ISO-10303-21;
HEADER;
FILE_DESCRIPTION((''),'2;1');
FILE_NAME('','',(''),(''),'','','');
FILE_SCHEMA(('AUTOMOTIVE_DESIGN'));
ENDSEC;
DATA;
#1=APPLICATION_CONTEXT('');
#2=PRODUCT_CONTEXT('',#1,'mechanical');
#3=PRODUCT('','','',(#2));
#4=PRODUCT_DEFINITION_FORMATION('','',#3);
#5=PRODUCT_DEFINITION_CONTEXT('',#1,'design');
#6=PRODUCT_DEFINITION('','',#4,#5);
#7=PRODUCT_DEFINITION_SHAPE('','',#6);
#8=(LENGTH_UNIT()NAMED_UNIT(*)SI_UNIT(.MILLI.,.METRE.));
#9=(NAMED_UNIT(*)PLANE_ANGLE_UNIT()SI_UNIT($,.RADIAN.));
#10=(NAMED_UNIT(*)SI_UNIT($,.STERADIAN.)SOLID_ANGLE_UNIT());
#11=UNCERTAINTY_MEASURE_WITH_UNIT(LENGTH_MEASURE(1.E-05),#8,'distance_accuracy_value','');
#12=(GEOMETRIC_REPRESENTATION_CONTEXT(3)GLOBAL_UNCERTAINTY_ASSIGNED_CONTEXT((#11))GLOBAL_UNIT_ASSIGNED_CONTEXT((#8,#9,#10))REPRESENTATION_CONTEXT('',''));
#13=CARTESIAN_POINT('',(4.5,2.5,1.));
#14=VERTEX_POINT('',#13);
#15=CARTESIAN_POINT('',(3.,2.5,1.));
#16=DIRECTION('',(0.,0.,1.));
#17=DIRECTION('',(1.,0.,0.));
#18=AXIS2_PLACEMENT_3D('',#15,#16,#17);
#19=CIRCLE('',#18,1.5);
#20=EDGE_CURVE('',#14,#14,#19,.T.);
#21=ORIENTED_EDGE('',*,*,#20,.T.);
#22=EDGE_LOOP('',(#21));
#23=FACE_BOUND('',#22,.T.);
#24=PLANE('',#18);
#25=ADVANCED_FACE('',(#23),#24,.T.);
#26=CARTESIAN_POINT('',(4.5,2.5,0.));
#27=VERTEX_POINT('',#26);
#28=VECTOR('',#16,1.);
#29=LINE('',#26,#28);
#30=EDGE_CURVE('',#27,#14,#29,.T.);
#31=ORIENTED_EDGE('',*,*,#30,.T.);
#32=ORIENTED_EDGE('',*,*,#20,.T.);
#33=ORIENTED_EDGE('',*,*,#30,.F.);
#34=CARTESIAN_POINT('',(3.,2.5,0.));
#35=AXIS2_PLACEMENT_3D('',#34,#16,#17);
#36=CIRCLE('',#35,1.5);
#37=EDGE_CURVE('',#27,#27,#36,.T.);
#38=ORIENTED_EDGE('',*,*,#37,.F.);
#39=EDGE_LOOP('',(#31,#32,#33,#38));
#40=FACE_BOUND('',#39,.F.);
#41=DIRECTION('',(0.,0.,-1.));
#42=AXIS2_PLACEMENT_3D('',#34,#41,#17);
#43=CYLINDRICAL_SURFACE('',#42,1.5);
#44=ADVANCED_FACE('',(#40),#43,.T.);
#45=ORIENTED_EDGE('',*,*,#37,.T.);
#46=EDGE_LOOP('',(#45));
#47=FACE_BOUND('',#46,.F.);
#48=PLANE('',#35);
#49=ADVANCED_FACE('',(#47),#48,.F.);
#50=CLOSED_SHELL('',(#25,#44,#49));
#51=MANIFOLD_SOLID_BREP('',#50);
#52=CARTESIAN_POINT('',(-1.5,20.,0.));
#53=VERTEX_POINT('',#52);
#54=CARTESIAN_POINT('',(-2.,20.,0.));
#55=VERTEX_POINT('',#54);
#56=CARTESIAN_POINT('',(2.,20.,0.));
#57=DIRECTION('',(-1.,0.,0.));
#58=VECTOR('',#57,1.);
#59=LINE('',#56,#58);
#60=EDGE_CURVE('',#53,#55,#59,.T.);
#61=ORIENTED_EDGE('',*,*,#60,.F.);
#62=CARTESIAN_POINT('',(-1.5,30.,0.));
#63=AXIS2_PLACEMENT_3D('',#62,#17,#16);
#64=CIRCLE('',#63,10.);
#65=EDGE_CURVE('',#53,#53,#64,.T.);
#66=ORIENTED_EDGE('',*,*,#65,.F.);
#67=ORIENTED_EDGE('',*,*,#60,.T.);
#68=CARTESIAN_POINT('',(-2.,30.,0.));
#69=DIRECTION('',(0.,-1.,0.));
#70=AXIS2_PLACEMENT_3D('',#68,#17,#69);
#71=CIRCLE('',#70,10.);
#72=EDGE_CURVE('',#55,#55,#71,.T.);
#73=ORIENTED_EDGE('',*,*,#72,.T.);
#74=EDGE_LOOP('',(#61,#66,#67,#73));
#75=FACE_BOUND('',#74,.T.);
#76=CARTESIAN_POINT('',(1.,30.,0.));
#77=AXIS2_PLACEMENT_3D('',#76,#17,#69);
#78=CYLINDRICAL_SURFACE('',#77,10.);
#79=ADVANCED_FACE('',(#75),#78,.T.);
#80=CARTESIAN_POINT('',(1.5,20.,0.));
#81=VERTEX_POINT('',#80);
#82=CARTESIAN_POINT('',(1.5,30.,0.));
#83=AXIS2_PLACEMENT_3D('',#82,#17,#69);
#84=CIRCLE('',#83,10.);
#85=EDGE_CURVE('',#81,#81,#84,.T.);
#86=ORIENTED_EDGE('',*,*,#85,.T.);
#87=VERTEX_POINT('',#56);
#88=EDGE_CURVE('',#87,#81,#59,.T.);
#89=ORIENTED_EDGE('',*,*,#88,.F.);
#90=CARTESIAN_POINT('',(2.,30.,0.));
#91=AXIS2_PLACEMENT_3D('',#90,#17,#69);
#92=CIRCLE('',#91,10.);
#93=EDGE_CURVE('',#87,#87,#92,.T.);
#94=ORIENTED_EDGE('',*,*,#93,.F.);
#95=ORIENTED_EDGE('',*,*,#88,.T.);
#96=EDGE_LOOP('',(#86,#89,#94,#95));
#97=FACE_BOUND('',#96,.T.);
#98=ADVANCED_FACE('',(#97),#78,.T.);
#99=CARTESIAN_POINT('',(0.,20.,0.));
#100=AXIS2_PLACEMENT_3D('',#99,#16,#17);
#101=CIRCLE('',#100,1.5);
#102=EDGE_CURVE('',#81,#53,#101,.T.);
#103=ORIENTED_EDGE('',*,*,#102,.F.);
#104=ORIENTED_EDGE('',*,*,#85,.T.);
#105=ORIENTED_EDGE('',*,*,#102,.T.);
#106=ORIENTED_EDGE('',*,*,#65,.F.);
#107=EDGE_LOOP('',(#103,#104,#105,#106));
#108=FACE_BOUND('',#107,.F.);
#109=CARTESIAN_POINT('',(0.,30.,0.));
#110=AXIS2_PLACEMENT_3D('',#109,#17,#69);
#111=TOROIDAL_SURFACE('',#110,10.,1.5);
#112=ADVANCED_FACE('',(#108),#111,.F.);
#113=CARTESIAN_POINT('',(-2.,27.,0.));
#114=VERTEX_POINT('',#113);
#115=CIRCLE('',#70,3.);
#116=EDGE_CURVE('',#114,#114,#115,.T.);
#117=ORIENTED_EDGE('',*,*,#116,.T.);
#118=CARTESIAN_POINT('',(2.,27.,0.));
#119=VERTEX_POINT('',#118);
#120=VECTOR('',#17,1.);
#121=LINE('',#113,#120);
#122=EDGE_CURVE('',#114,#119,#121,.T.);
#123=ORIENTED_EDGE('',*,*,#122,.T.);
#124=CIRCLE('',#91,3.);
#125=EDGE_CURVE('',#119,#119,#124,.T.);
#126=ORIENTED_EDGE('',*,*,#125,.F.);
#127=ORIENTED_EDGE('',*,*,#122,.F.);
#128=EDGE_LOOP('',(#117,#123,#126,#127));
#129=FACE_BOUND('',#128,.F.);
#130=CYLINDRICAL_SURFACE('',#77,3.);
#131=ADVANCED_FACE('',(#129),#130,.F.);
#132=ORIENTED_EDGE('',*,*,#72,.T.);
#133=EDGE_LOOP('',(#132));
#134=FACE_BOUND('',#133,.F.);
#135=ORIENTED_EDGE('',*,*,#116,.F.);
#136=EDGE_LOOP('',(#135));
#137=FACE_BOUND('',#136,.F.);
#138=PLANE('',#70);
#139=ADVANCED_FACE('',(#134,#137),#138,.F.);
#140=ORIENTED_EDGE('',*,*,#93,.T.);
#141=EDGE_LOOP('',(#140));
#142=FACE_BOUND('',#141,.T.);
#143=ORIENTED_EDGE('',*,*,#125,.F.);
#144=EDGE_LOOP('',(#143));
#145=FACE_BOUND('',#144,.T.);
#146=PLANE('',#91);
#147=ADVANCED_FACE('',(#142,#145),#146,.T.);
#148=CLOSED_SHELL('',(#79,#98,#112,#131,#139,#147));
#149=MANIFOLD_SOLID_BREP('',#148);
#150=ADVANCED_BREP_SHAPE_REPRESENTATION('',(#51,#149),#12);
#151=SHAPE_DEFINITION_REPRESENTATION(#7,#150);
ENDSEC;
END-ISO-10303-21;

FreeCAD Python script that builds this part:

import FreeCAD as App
import Part
import Sketcher

V = App.Vector


def add_polygon(sketch, points):
    """Adds a closed chain of lines whose ends are joined by coincident constraints."""
    first, n = sketch.GeometryCount, len(points)
    for a, b in zip(points, points[1:] + points[:1]):
        sketch.addGeometry(Part.LineSegment(App.Vector(*a, 0), App.Vector(*b, 0)), False)
    for i in range(n):
        sketch.addConstraint(Sketcher.Constraint("Coincident", first + i, 2, first + (i + 1) % n, 1))

doc = App.newDocument("Part")
body = doc.addObject("PartDesign::Body", "Body")

# Sketch on XY plane
sketch1 = body.newObject("Sketcher::SketchObject", "Sketch")
sketch1.AttachmentSupport = (doc.getObject("XY_Plane"), [""])
sketch1.MapMode = "FlatFace"
sketch1.addGeometry(Part.Circle(V(0, 20, 0), V(0, 0, 1), 1.5), False)
sketch1.addGeometry(Part.LineSegment(V(0, 30, 0), V(10, 30, 0)), True)  # axis
sketch1.addConstraint(Sketcher.Constraint("Horizontal", 1))
sketch1.addConstraint(Sketcher.Constraint("PointOnObject", 0, 3, -2))
sketch1.addConstraint(Sketcher.Constraint("PointOnObject", 1, 1, -2))
sketch1.addConstraint(Sketcher.Constraint("Diameter", 0, 3.0))
sketch1.addConstraint(Sketcher.Constraint("DistanceX", 1, 1, 1, 2, 10.0))
sketch1.addConstraint(Sketcher.Constraint("DistanceY", -1, 1, 0, 3, 20.0))
sketch1.addConstraint(Sketcher.Constraint("DistanceY", -1, 1, 1, 1, 30.0))
revolution = body.newObject("PartDesign::Revolution", "Revolution")
revolution.Profile = sketch1
revolution.ReferenceAxis = (sketch1, ["Axis0"])
revolution.Angle = 360
body2 = doc.addObject("PartDesign::Body", "Body001")

# Sketch on XY plane
sketch2 = body2.newObject("Sketcher::SketchObject", "Sketch001")
sketch2.AttachmentSupport = (doc.getObject("XY_Plane001"), [""])
sketch2.MapMode = "FlatFace"
add_polygon(sketch2, [(0, 27), (0, 20), (2, 20), (2, 27)])  # lines 0-3
sketch2.addGeometry(Part.LineSegment(V(0, 30, 0), V(2, 30, 0)), True)  # axis
sketch2.addConstraint(Sketcher.Constraint("Vertical", 0))
sketch2.addConstraint(Sketcher.Constraint("Horizontal", 1))
sketch2.addConstraint(Sketcher.Constraint("Vertical", 2))
sketch2.addConstraint(Sketcher.Constraint("Horizontal", 3))
sketch2.addConstraint(Sketcher.Constraint("Horizontal", 4))
sketch2.addConstraint(Sketcher.Constraint("PointOnObject", 0, 2, -2))
sketch2.addConstraint(Sketcher.Constraint("PointOnObject", 4, 1, -2))
sketch2.addConstraint(Sketcher.Constraint("Vertical", 2, 2, 4, 2))
sketch2.addConstraint(Sketcher.Constraint("DistanceX", 1, 1, 1, 2, 2.0))
sketch2.addConstraint(Sketcher.Constraint("DistanceY", 0, 2, 0, 1, 7.0))
sketch2.addConstraint(Sketcher.Constraint("DistanceY", -1, 1, 0, 2, 20.0))
sketch2.addConstraint(Sketcher.Constraint("DistanceY", -1, 1, 4, 1, 30.0))
revolution2 = body2.newObject("PartDesign::Revolution", "Revolution001")
revolution2.Profile = sketch2
revolution2.ReferenceAxis = (sketch2, ["Axis0"])
revolution2.Angle = 360
body3 = doc.addObject("PartDesign::Body", "Body002")

# Sketch on XY plane
sketch3 = body3.newObject("Sketcher::SketchObject", "Sketch002")
sketch3.AttachmentSupport = (doc.getObject("XY_Plane002"), [""])
sketch3.MapMode = "FlatFace"
add_polygon(sketch3, [(-2, 27), (-2, 20), (0, 20), (0, 27)])  # lines 0-3
sketch3.addGeometry(Part.LineSegment(V(-2, 30, 0), V(0, 30, 0)), True)  # axis
sketch3.addConstraint(Sketcher.Constraint("Vertical", 0))
sketch3.addConstraint(Sketcher.Constraint("Horizontal", 1))
sketch3.addConstraint(Sketcher.Constraint("Vertical", 2))
sketch3.addConstraint(Sketcher.Constraint("Horizontal", 3))
sketch3.addConstraint(Sketcher.Constraint("Horizontal", 4))
sketch3.addConstraint(Sketcher.Constraint("PointOnObject", 1, 2, -2))
sketch3.addConstraint(Sketcher.Constraint("PointOnObject", 4, 2, -2))
sketch3.addConstraint(Sketcher.Constraint("Vertical", 3, 2, 4, 1))
sketch3.addConstraint(Sketcher.Constraint("DistanceX", 1, 1, 1, 2, 2.0))
sketch3.addConstraint(Sketcher.Constraint("DistanceY", 0, 2, 0, 1, 7.0))
sketch3.addConstraint(Sketcher.Constraint("DistanceY", -1, 1, 0, 2, 20.0))
sketch3.addConstraint(Sketcher.Constraint("DistanceY", -1, 1, 4, 1, 30.0))
revolution3 = body3.newObject("PartDesign::Revolution", "Revolution002")
revolution3.Profile = sketch3
revolution3.ReferenceAxis = (sketch3, ["Axis0"])
revolution3.Angle = 360
doc.recompute()

boolean = body3.newObject("PartDesign::Boolean", "Boolean")
boolean.Type = "Fuse"
boolean.addObjects([body2])
doc.recompute()

boolean2 = body3.newObject("PartDesign::Boolean", "Boolean001")
boolean2.Type = "Cut"
boolean2.addObjects([body])
body4 = doc.addObject("PartDesign::Body", "Body003")

# Sketch on XY plane
sketch4 = body4.newObject("Sketcher::SketchObject", "Sketch003")
sketch4.AttachmentSupport = (doc.getObject("XY_Plane003"), [""])
sketch4.MapMode = "FlatFace"
sketch4.addGeometry(Part.Circle(V(3, 2.5, 0), V(0, 0, 1), 1.5), False)
sketch4.addConstraint(Sketcher.Constraint("Diameter", 0, 3.0))
sketch4.addConstraint(Sketcher.Constraint("DistanceX", -1, 1, 0, 3, 3.0))
sketch4.addConstraint(Sketcher.Constraint("DistanceY", -1, 1, 0, 3, 2.5))
pad1 = body4.newObject("PartDesign::Pad", "Pad")
pad1.Profile = sketch4
pad1.Length = 1

doc.recompute()
